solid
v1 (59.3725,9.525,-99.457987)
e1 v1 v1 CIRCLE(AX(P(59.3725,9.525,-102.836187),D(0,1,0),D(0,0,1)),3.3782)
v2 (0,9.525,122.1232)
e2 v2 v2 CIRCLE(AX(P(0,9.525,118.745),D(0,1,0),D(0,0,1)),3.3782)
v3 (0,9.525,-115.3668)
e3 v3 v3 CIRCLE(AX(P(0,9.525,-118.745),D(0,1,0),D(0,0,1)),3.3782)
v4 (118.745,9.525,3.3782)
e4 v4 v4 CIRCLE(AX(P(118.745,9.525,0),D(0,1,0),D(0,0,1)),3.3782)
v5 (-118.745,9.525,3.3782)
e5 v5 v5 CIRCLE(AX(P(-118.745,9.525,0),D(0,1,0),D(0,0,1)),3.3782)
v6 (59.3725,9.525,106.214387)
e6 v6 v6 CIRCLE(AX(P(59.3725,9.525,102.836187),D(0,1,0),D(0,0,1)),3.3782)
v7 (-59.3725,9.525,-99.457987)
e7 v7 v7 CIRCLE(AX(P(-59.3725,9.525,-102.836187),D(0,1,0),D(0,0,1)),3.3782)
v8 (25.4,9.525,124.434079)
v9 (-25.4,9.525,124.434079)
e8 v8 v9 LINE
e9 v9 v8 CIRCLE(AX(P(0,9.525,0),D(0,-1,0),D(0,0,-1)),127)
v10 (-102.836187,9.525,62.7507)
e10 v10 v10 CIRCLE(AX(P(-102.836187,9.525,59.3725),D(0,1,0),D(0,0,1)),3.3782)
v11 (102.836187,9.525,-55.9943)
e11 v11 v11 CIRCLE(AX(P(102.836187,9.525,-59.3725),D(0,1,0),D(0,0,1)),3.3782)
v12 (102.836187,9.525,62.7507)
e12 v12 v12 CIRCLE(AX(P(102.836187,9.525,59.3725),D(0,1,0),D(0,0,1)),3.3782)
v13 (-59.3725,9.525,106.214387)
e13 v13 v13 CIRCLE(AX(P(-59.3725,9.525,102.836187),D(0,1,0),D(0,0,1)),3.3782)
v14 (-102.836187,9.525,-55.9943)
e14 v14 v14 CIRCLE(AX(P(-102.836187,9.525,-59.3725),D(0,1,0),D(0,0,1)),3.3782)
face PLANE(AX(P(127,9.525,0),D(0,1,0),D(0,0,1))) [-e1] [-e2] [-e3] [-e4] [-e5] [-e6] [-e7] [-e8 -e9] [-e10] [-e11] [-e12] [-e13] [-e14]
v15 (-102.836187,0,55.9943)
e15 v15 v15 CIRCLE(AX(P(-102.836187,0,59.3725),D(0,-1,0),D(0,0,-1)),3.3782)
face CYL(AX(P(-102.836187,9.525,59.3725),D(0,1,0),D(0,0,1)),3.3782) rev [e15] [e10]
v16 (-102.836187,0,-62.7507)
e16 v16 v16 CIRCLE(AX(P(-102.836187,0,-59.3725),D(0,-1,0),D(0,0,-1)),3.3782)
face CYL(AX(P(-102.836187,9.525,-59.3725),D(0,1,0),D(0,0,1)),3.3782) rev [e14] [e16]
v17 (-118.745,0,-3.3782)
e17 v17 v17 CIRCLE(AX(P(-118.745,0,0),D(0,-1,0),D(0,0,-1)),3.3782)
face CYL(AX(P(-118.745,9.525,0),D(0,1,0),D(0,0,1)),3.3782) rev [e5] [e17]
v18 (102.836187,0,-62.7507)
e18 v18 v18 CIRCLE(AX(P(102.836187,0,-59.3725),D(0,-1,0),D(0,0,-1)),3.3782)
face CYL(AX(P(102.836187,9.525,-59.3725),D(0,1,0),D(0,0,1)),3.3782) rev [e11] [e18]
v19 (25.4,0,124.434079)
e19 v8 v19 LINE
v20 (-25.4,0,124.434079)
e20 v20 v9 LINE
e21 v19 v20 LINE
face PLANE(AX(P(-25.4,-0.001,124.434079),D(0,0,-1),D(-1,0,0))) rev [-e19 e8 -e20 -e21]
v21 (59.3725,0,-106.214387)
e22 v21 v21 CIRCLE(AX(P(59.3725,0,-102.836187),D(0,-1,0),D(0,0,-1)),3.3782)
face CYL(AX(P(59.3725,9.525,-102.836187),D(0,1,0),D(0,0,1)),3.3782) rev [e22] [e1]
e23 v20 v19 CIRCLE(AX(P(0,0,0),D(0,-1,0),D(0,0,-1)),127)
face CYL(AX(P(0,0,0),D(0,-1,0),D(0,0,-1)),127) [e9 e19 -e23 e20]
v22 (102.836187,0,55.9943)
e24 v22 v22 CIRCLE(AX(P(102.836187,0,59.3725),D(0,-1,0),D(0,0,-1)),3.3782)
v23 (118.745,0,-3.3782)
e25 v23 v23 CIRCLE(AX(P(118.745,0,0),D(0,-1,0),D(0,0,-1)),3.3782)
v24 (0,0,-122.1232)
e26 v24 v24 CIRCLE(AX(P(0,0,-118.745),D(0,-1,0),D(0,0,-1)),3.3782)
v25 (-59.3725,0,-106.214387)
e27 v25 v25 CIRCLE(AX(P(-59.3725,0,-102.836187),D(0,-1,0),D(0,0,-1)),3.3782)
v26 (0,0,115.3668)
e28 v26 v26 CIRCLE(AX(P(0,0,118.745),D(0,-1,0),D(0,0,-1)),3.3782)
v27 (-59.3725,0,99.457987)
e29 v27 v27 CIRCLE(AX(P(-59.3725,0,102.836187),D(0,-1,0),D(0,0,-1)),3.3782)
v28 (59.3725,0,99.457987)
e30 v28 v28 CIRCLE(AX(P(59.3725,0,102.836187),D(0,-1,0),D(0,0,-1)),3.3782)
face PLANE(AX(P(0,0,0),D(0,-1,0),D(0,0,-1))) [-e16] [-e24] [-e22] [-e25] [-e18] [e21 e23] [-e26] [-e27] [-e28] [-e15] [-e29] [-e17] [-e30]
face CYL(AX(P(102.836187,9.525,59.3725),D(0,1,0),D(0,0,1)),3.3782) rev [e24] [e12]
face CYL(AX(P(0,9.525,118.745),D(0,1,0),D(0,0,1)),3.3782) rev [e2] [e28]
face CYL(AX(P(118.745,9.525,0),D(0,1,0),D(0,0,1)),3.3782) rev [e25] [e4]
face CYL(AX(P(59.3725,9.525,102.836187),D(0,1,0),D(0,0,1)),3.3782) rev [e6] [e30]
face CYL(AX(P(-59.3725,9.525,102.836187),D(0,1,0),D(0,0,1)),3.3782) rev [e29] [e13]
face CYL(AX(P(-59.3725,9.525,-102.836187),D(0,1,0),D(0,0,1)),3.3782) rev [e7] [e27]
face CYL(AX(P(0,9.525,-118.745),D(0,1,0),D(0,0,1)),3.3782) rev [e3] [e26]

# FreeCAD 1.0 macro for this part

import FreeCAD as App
import Part
import Sketcher
from FreeCAD import Vector
Q = App.Units.Quantity


def add_polygon(sketch, points):
    """Adds a closed chain of lines whose ends are joined by coincident constraints."""
    first, n = sketch.GeometryCount, len(points)
    for a, b in zip(points, points[1:] + points[:1]):
        sketch.addGeometry(Part.LineSegment(App.Vector(*a, 0), App.Vector(*b, 0)), False)
    for i in range(n):
        sketch.addConstraint(Sketcher.Constraint("Coincident", first + i, 2, first + (i + 1) % n, 1))

doc = App.newDocument("Part")
body = doc.addObject("PartDesign::Body", "Body")

# Sketch on XY plane
sketch1 = body.newObject("Sketcher::SketchObject", "Sketch")
sketch1.AttachmentSupport = (doc.getObject("XY_Plane"), [""])
sketch1.MapMode = "FlatFace"
add_polygon(sketch1, [(0, 10), (0, 0), (127, 0), (127, 10)])  # lines 0-3
sketch1.addConstraint(Sketcher.Constraint("Vertical", 0))
sketch1.addConstraint(Sketcher.Constraint("Horizontal", 1))
sketch1.addConstraint(Sketcher.Constraint("Vertical", 2))
sketch1.addConstraint(Sketcher.Constraint("Horizontal", 3))
sketch1.addConstraint(Sketcher.Constraint("Coincident", 0, 2, -1, 1))
sketch1.addConstraint(Sketcher.Constraint("DistanceX", 1, 1, 1, 2, Q("5 in")))
sketch1.addConstraint(Sketcher.Constraint("DistanceY", 0, 2, 0, 1, Q("0.375 in")))
revolution = body.newObject("PartDesign::Revolution", "Revolution")
revolution.Profile = sketch1
revolution.ReferenceAxis = (sketch1, ["V_Axis"])
revolution.Angle = 360

# Sketch on XZ plane
sketch2 = body.newObject("Sketcher::SketchObject", "Sketch001")
sketch2.AttachmentSupport = (doc.getObject("XZ_Plane"), [""])
sketch2.MapMode = "FlatFace"
sketch2.AttachmentOffset = App.Placement(Vector(0, 0, -0.375 * 25.4), App.Rotation())
sketch2.addGeometry(Part.Circle(Vector(0, -118.7, 0), Vector(0, 0, 1), 3.4), False)
sketch2.addGeometry(Part.Circle(Vector(59.4, -102.8, 0), Vector(0, 0, 1), 3.4), False)
sketch2.addGeometry(Part.Circle(Vector(102.8, -59.4, 0), Vector(0, 0, 1), 3.4), False)
sketch2.addGeometry(Part.Circle(Vector(118.7, 0, 0), Vector(0, 0, 1), 3.4), False)
sketch2.addGeometry(Part.Circle(Vector(102.8, 59.4, 0), Vector(0, 0, 1), 3.4), False)
sketch2.addGeometry(Part.Circle(Vector(59.4, 102.8, 0), Vector(0, 0, 1), 3.4), False)
sketch2.addGeometry(Part.Circle(Vector(0, 118.7, 0), Vector(0, 0, 1), 3.4), False)
sketch2.addGeometry(Part.Circle(Vector(-59.4, 102.8, 0), Vector(0, 0, 1), 3.4), False)
sketch2.addGeometry(Part.Circle(Vector(-102.8, 59.4, 0), Vector(0, 0, 1), 3.4), False)
sketch2.addGeometry(Part.Circle(Vector(-118.7, 0, 0), Vector(0, 0, 1), 3.4), False)
sketch2.addGeometry(Part.Circle(Vector(-102.8, -59.4, 0), Vector(0, 0, 1), 3.4), False)
sketch2.addGeometry(Part.Circle(Vector(-59.4, -102.8, 0), Vector(0, 0, 1), 3.4), False)
sketch2.addConstraint(Sketcher.Constraint("Equal", 0, 1))
sketch2.addConstraint(Sketcher.Constraint("Equal", 1, 2))
sketch2.addConstraint(Sketcher.Constraint("Equal", 2, 3))
sketch2.addConstraint(Sketcher.Constraint("Equal", 3, 4))
sketch2.addConstraint(Sketcher.Constraint("Equal", 4, 5))
sketch2.addConstraint(Sketcher.Constraint("Equal", 5, 6))
sketch2.addConstraint(Sketcher.Constraint("Equal", 6, 7))
sketch2.addConstraint(Sketcher.Constraint("Equal", 7, 8))
sketch2.addConstraint(Sketcher.Constraint("Equal", 8, 9))
sketch2.addConstraint(Sketcher.Constraint("Equal", 9, 10))
sketch2.addConstraint(Sketcher.Constraint("Equal", 10, 11))
sketch2.addConstraint(Sketcher.Constraint("Symmetric", 0, 3, 6, 3, -1, 1))
sketch2.addConstraint(Sketcher.Constraint("Symmetric", 1, 3, 7, 3, -1, 1))
sketch2.addConstraint(Sketcher.Constraint("Symmetric", 2, 3, 8, 3, -1, 1))
sketch2.addConstraint(Sketcher.Constraint("Symmetric", 3, 3, 9, 3, -1, 1))
sketch2.addConstraint(Sketcher.Constraint("Symmetric", 4, 3, 10, 3, -1, 1))
sketch2.addConstraint(Sketcher.Constraint("Symmetric", 5, 3, 11, 3, -1, 1))
sketch2.addConstraint(Sketcher.Constraint("Symmetric", 5, 3, 7, 3, -2))
sketch2.addConstraint(Sketcher.Constraint("Symmetric", 4, 3, 8, 3, -2))
sketch2.addConstraint(Sketcher.Constraint("PointOnObject", 0, 3, -2))
sketch2.addConstraint(Sketcher.Constraint("PointOnObject", 3, 3, -1))
sketch2.addConstraint(Sketcher.Constraint("Diameter", 0, Q("0.266 in")))
sketch2.addConstraint(Sketcher.Constraint("DistanceY", 0, 3, -1, 1, Q("4.675 in")))
sketch2.addConstraint(Sketcher.Constraint("DistanceX", -1, 1, 3, 3, Q("4.675 in")))
sketch2.addConstraint(Sketcher.Constraint("DistanceY", 2, 3, 4, 3, Q("4.675 in")))
sketch2.addConstraint(Sketcher.Constraint("DistanceX", 7, 3, 5, 3, Q("4.675 in")))
sketch2.addConstraint(Sketcher.Constraint("DistanceY", 1, 3, -1, 1, 102.836187))
sketch2.addConstraint(Sketcher.Constraint("DistanceX", -1, 1, 2, 3, 102.836187))
doc.recompute()
hole = body.newObject("PartDesign::Hole", "Hole")
hole.Profile = sketch2
hole.ThreadType = "None"
hole.Diameter = Q("0.266 in")
hole.DepthType = "ThroughAll"
hole.Reversed = True

# Sketch on XZ plane
sketch3 = body.newObject("Sketcher::SketchObject", "Sketch002")
sketch3.AttachmentSupport = (doc.getObject("XZ_Plane"), [""])
sketch3.MapMode = "FlatFace"
sketch3.AttachmentOffset = App.Placement(Vector(0, 0, -0.375 * 25.4), App.Rotation())
add_polygon(sketch3, [(-25.4, 124.4), (-25.4, 127), (25.4, 127), (25.4, 124.4)])  # lines 0-3
sketch3.addConstraint(Sketcher.Constraint("Vertical", 0))
sketch3.addConstraint(Sketcher.Constraint("Horizontal", 1))
sketch3.addConstraint(Sketcher.Constraint("Vertical", 2))
sketch3.addConstraint(Sketcher.Constraint("Horizontal", 3))
sketch3.addConstraint(Sketcher.Constraint("DistanceX", 1, 1, 1, 2, Q("2 in")))
sketch3.addConstraint(Sketcher.Constraint("DistanceX", 0, 2, -1, 1, Q("1 in")))
sketch3.addConstraint(Sketcher.Constraint("DistanceY", -1, 1, 0, 2, Q("5 in")))
sketch3.addConstraint(Sketcher.Constraint("DistanceY", 0, 1, 0, 2, 2.565921))
pocket1 = body.newObject("PartDesign::Pocket", "Pocket")
pocket1.Profile = sketch3
pocket1.Type = "UpToFirst"
pocket1.Reversed = True

doc.recompute()
